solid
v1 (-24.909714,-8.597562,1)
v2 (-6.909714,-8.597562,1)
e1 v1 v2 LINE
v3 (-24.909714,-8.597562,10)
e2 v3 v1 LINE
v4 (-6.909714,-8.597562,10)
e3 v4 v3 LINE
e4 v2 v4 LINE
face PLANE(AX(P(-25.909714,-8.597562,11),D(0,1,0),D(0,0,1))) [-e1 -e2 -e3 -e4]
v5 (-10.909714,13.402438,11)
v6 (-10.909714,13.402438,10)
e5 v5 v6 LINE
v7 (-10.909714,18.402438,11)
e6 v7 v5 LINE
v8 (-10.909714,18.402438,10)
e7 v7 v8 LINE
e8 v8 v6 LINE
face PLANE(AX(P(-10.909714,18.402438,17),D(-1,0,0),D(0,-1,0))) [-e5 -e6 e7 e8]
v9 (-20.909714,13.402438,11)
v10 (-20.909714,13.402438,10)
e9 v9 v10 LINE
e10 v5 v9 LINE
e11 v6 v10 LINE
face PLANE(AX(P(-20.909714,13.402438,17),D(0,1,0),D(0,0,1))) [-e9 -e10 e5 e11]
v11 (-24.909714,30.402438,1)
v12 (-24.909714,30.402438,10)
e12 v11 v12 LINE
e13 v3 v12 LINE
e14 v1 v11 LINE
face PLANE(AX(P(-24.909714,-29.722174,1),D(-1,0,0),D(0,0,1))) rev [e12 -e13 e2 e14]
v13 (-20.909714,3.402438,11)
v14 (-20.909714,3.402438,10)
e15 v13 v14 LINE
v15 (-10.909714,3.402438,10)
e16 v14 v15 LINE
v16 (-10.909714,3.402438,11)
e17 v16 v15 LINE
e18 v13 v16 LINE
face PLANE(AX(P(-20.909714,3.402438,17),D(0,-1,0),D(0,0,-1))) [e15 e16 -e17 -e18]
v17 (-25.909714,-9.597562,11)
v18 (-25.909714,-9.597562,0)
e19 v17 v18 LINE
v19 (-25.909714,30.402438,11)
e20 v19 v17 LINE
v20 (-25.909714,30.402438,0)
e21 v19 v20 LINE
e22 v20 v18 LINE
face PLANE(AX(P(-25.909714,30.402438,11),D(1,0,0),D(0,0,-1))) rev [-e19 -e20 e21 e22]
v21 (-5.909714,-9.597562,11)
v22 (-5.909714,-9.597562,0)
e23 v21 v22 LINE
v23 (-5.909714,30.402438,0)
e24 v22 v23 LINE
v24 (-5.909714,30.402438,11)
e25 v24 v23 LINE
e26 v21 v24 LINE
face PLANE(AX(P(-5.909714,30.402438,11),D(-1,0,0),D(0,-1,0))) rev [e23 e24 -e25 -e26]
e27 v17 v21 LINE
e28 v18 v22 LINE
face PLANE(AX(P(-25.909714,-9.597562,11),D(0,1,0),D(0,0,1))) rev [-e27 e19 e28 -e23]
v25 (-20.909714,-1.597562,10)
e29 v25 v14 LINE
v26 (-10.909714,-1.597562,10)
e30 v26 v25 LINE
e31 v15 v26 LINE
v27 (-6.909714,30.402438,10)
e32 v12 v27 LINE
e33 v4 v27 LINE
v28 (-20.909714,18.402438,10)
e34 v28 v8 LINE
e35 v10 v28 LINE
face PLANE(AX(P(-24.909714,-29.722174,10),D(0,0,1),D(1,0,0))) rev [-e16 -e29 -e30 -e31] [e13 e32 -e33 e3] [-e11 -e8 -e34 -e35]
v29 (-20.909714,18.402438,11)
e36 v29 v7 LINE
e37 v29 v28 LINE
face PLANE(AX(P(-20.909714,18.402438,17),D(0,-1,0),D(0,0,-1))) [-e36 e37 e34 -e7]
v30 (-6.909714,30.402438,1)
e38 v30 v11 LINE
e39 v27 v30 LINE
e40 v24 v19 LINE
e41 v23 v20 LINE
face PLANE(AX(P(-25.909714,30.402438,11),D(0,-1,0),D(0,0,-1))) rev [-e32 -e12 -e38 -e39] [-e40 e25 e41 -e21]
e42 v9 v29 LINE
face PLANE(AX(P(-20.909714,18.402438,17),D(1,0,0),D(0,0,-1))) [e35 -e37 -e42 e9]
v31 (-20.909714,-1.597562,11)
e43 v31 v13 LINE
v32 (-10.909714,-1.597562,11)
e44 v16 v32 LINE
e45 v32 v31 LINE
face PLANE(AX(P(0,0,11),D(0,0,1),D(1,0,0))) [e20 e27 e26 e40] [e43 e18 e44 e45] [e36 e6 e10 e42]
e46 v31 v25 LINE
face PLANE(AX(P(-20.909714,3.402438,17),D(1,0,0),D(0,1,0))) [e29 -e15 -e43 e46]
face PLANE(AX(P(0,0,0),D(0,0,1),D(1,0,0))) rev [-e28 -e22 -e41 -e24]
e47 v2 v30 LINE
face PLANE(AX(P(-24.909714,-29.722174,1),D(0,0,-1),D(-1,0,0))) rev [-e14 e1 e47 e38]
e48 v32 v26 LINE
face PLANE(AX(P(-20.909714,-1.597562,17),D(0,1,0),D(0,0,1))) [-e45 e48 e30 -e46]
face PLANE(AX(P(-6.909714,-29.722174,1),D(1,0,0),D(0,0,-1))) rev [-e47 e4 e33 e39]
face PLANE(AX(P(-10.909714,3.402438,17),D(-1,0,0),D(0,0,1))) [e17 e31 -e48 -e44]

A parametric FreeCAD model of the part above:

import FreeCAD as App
import Part
import Sketcher

V = App.Vector
Q = App.Units.Quantity


def add_polygon(sketch, points):
    """Adds a closed chain of lines whose ends are joined by coincident constraints."""
    first, n = sketch.GeometryCount, len(points)
    for a, b in zip(points, points[1:] + points[:1]):
        sketch.addGeometry(Part.LineSegment(App.Vector(*a, 0), App.Vector(*b, 0)), False)
    for i in range(n):
        sketch.addConstraint(Sketcher.Constraint("Coincident", first + i, 2, first + (i + 1) % n, 1))

doc = App.newDocument("Part")
body = doc.addObject("PartDesign::Body", "Body")

# Sketch on XY plane
sketch1 = body.newObject("Sketcher::SketchObject", "Sketch")
sketch1.AttachmentSupport = (doc.getObject("XY_Plane"), [""])
sketch1.MapMode = "FlatFace"
add_polygon(sketch1, [(-25.909714, 30.402438), (-25.909714, -9.597562), (-5.909714, -9.597562), (-5.909714, 30.402438)])  # lines 0-3
sketch1.addConstraint(Sketcher.Constraint("Vertical", 0))
sketch1.addConstraint(Sketcher.Constraint("Horizontal", 1))
sketch1.addConstraint(Sketcher.Constraint("Vertical", 2))
sketch1.addConstraint(Sketcher.Constraint("Horizontal", 3))
sketch1.addConstraint(Sketcher.Constraint("DistanceX", 1, 1, 1, 2, Q("20 mm")))
sketch1.addConstraint(Sketcher.Constraint("DistanceY", 0, 2, 0, 1, Q("40 mm")))
sketch1.addConstraint(Sketcher.Constraint("DistanceX", 0, 2, -1, 1, Q("25.909714 mm")))
sketch1.addConstraint(Sketcher.Constraint("DistanceY", 0, 2, -1, 1, Q("9.597562 mm")))
pad1 = body.newObject("PartDesign::Pad", "Pad")
pad1.Profile = sketch1
pad1.Length = 11

# Sketch on XZ plane
sketch2 = body.newObject("Sketcher::SketchObject", "Sketch001")
sketch2.AttachmentSupport = (doc.getObject("XZ_Plane"), [""])
sketch2.MapMode = "FlatFace"
sketch2.AttachmentOffset = App.Placement(V(0, 0, -30.402438), App.Rotation())
add_polygon(sketch2, [(-24.909714, 1), (-24.909714, 10), (-6.909714, 10), (-6.909714, 1)])  # lines 0-3
sketch2.addConstraint(Sketcher.Constraint("Vertical", 0))
sketch2.addConstraint(Sketcher.Constraint("Horizontal", 1))
sketch2.addConstraint(Sketcher.Constraint("Vertical", 2))
sketch2.addConstraint(Sketcher.Constraint("Horizontal", 3))
sketch2.addConstraint(Sketcher.Constraint("DistanceX", 1, 1, 1, 2, Q("18 mm")))
sketch2.addConstraint(Sketcher.Constraint("DistanceY", 0, 1, 0, 2, Q("9 mm")))
sketch2.addConstraint(Sketcher.Constraint("DistanceY", -1, 1, 0, 2, Q("10 mm")))
sketch2.addConstraint(Sketcher.Constraint("DistanceX", 0, 2, -1, 1, Q("24.909714 mm")))
pocket1 = body.newObject("PartDesign::Pocket", "Pocket")
pocket1.Profile = sketch2
pocket1.Length = 39
pocket1.Reversed = True

# Sketch on XY plane
sketch3 = body.newObject("Sketcher::SketchObject", "Sketch002")
sketch3.AttachmentSupport = (doc.getObject("XY_Plane"), [""])
sketch3.MapMode = "FlatFace"
sketch3.AttachmentOffset = App.Placement(V(0, 0, 11), App.Rotation())
add_polygon(sketch3, [(-20.909714, 18.402438), (-20.909714, 13.402438), (-10.909714, 13.402438), (-10.909714, 18.402438)])  # lines 0-3
add_polygon(sketch3, [(-20.909714, 3.402438), (-20.909714, -1.597562), (-10.909714, -1.597562), (-10.909714, 3.402438)])  # lines 4-7
sketch3.addConstraint(Sketcher.Constraint("Vertical", 0))
sketch3.addConstraint(Sketcher.Constraint("Horizontal", 1))
sketch3.addConstraint(Sketcher.Constraint("Vertical", 2))
sketch3.addConstraint(Sketcher.Constraint("Horizontal", 3))
sketch3.addConstraint(Sketcher.Constraint("Vertical", 4))
sketch3.addConstraint(Sketcher.Constraint("Horizontal", 5))
sketch3.addConstraint(Sketcher.Constraint("Vertical", 6))
sketch3.addConstraint(Sketcher.Constraint("Horizontal", 7))
sketch3.addConstraint(Sketcher.Constraint("Vertical", 3, 2, 4, 2))
sketch3.addConstraint(Sketcher.Constraint("Vertical", 2, 2, 5, 2))
sketch3.addConstraint(Sketcher.Constraint("Equal", 2, 4))
sketch3.addConstraint(Sketcher.Constraint("DistanceX", 1, 1, 1, 2, Q("10 mm")))
sketch3.addConstraint(Sketcher.Constraint("DistanceY", 0, 2, 0, 1, Q("5 mm")))
sketch3.addConstraint(Sketcher.Constraint("DistanceY", 4, 2, 0, 2, Q("15 mm")))
sketch3.addConstraint(Sketcher.Constraint("DistanceX", 0, 2, -1, 1, Q("20.909714 mm")))
sketch3.addConstraint(Sketcher.Constraint("DistanceY", -1, 1, 0, 2, Q("13.402438 mm")))
pocket2 = body.newObject("PartDesign::Pocket", "Pocket001")
pocket2.Profile = sketch3
pocket2.Type = "TwoLengths"
pocket2.Length = 6
pocket2.Length2 = 4
pocket2.Reversed = True

doc.recompute()
